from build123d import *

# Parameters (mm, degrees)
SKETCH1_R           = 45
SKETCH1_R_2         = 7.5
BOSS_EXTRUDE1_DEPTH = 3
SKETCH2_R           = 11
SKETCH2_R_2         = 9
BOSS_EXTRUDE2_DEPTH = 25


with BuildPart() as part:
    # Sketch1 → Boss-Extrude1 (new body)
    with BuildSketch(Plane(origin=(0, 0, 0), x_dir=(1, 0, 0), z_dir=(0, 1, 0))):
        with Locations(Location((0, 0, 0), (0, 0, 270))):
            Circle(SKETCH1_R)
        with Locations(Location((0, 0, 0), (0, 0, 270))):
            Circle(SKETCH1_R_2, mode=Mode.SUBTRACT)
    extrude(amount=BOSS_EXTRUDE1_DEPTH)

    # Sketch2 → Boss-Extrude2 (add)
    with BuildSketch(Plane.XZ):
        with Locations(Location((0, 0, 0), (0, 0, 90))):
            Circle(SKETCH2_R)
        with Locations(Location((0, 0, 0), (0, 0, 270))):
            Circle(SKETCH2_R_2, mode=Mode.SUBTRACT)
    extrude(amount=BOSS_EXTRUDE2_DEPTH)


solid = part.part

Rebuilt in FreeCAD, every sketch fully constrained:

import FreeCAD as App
import Part
import Sketcher

V = App.Vector

doc = App.newDocument("Part")
body = doc.addObject("PartDesign::Body", "Body")

# Sketch on XZ plane
sketch1 = body.newObject("Sketcher::SketchObject", "Sketch")
sketch1.AttachmentSupport = (doc.getObject("XZ_Plane"), [""])
sketch1.MapMode = "FlatFace"
sketch1.addGeometry([
    Part.Circle(V(0, 0, 0), V(0, 0, 1), 45),
    Part.Circle(V(0, 0, 0), V(0, 0, 1), 7.5),
], False)
sketch1.addConstraint([
    Sketcher.Constraint("Coincident", 0, 3, -1, 1),
    Sketcher.Constraint("Coincident", 1, 3, -1, 1),
    Sketcher.Constraint("Diameter", 0, 90.0),
    Sketcher.Constraint("Diameter", 1, 15.0),
])
pad1 = body.newObject("PartDesign::Pad", "Pad")
pad1.Profile = sketch1
pad1.Length = 3
pad1.Reversed = True

# Sketch on XZ plane
sketch2 = body.newObject("Sketcher::SketchObject", "Sketch001")
sketch2.AttachmentSupport = (doc.getObject("XZ_Plane"), [""])
sketch2.MapMode = "FlatFace"
sketch2.addGeometry([
    Part.Circle(V(0, 0, 0), V(0, 0, 1), 11),
    Part.Circle(V(0, 0, 0), V(0, 0, 1), 9),
], False)
sketch2.addConstraint([
    Sketcher.Constraint("Coincident", 0, 3, -1, 1),
    Sketcher.Constraint("Coincident", 1, 3, -1, 1),
    Sketcher.Constraint("Diameter", 0, 22.0),
    Sketcher.Constraint("Diameter", 1, 18.0),
])
pad2 = body.newObject("PartDesign::Pad", "Pad001")
pad2.Profile = sketch2
pad2.Length = 25

doc.recompute()
